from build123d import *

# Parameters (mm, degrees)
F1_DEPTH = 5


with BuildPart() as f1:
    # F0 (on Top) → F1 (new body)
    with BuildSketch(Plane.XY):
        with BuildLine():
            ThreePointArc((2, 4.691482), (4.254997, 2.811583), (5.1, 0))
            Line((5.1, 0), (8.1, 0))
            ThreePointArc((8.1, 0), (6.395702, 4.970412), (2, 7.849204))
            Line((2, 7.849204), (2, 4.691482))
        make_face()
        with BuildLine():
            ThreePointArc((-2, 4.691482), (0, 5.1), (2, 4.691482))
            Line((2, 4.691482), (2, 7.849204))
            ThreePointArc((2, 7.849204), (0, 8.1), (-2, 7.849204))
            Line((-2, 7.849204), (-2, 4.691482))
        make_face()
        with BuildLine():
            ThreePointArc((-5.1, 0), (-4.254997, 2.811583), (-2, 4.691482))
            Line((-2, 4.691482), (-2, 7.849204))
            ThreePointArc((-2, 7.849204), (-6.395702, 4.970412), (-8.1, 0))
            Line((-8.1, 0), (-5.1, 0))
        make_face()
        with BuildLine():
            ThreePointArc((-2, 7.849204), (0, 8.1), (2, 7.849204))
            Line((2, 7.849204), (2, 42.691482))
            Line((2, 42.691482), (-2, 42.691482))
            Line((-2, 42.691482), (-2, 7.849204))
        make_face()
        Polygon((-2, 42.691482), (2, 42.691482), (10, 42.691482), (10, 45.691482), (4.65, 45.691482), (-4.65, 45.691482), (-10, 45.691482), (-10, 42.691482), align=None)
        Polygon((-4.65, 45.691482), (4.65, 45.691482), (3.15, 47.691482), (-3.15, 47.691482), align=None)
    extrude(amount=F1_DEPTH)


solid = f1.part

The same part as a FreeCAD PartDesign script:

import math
import FreeCAD as App
import Part
import Sketcher
from FreeCAD import Vector
Q = App.Units.Quantity

doc = App.newDocument("Part")
body = doc.addObject("PartDesign::Body", "Body")

sketch1 = body.newObject("Sketcher::SketchObject", "Sketch")
sketch1.AttachmentSupport = (doc.getObject("XY_Plane"), [""])
sketch1.MapMode = "FlatFace"
sketch1.addGeometry([
    Part.ArcOfCircle(Part.Circle(Vector(-0.000002, -0.000001, 0), Vector(0, 0, 1), 5.100002), math.radians(0.000009), math.radians(66.911214)),
    Part.LineSegment(Vector(5.1, 0, 0), Vector(8.1, 0, 0)),
    Part.ArcOfCircle(Part.Circle(Vector(-0.000001, 0, 0), Vector(0, 0, 1), 8.100001), math.radians(0.000002), math.radians(75.705048)),
    Part.LineSegment(Vector(2, 7.849204, 0), Vector(2, 42.691482, 0)),
    Part.LineSegment(Vector(2, 42.691482, 0), Vector(10, 42.691482, 0)),
    Part.LineSegment(Vector(10, 42.691482, 0), Vector(10, 45.691482, 0)),
    Part.LineSegment(Vector(10, 45.691482, 0), Vector(4.65, 45.691482, 0)),
    Part.LineSegment(Vector(4.65, 45.691482, 0), Vector(3.15, 47.691482, 0)),
    Part.LineSegment(Vector(3.15, 47.691482, 0), Vector(-3.15, 47.691482, 0)),
    Part.LineSegment(Vector(-3.15, 47.691482, 0), Vector(-4.65, 45.691482, 0)),
    Part.LineSegment(Vector(-4.65, 45.691482, 0), Vector(-10, 45.691482, 0)),
    Part.LineSegment(Vector(-10, 45.691482, 0), Vector(-10, 42.691482, 0)),
    Part.LineSegment(Vector(-10, 42.691482, 0), Vector(-2, 42.691482, 0)),
    Part.LineSegment(Vector(-2, 42.691482, 0), Vector(-2, 7.849204, 0)),
    Part.ArcOfCircle(Part.Circle(Vector(0.000001, 0, 0), Vector(0, 0, 1), 8.100001), math.radians(104.294952), math.radians(179.999998)),
    Part.LineSegment(Vector(-8.1, 0, 0), Vector(-5.1, 0, 0)),
    Part.ArcOfCircle(Part.Circle(Vector(0.000002, -0.000001, 0), Vector(0, 0, 1), 5.100002), math.radians(113.088786), math.radians(179.999991)),
    Part.ArcOfCircle(Part.Circle(Vector(0, -0.000004, 0), Vector(0, 0, 1), 5.100004), math.radians(66.911247), math.radians(113.088753)),
], False)
sketch1.addConstraint([
    Sketcher.Constraint("Coincident", 0, 1, 1, 1),
    Sketcher.Constraint("Coincident", 1, 2, 2, 1),
    Sketcher.Constraint("Coincident", 2, 2, 3, 1),
    Sketcher.Constraint("Coincident", 3, 2, 4, 1),
    Sketcher.Constraint("Coincident", 4, 2, 5, 1),
    Sketcher.Constraint("Coincident", 5, 2, 6, 1),
    Sketcher.Constraint("Coincident", 6, 2, 7, 1),
    Sketcher.Constraint("Coincident", 7, 2, 8, 1),
    Sketcher.Constraint("Coincident", 8, 2, 9, 1),
    Sketcher.Constraint("Coincident", 9, 2, 10, 1),
    Sketcher.Constraint("Coincident", 10, 2, 11, 1),
    Sketcher.Constraint("Coincident", 11, 2, 12, 1),
    Sketcher.Constraint("Coincident", 12, 2, 13, 1),
    Sketcher.Constraint("Coincident", 13, 2, 14, 1),
    Sketcher.Constraint("Coincident", 14, 2, 15, 1),
    Sketcher.Constraint("Coincident", 15, 2, 16, 2),
    Sketcher.Constraint("Tangent", 16, 1, 17, 2),
    Sketcher.Constraint("Tangent", 17, 1, 0, 2),
    Sketcher.Constraint("Horizontal", 1),
    Sketcher.Constraint("Vertical", 3),
    Sketcher.Constraint("Horizontal", 4),
    Sketcher.Constraint("Vertical", 5),
    Sketcher.Constraint("Horizontal", 6),
    Sketcher.Constraint("Horizontal", 8),
    Sketcher.Constraint("Horizontal", 10),
    Sketcher.Constraint("Vertical", 11),
    Sketcher.Constraint("Horizontal", 12),
    Sketcher.Constraint("Vertical", 13),
    Sketcher.Constraint("Horizontal", 15),
    Sketcher.Constraint("Coincident", 0, 3, -1, 1),
    Sketcher.Constraint("Coincident", 2, 3, -1, 1),
    Sketcher.Constraint("Coincident", 14, 3, -1, 1),
    Sketcher.Constraint("Coincident", 16, 3, -1, 1),
    Sketcher.Constraint("Equal", 2, 14),
    Sketcher.Constraint("Symmetric", 6, 2, 9, 2, -2),
    Sketcher.Constraint("Symmetric", 4, 2, 11, 2, -2),
    Sketcher.Constraint("PointOnObject", 0, 1, -1),
    Sketcher.Constraint("PointOnObject", 14, 2, -1),
    Sketcher.Constraint("Horizontal", 2, 2, 13, 2),
    Sketcher.Constraint("Horizontal", 16, 1, 17, 1),
    Sketcher.Constraint("Vertical", 13, 2, 16, 1),
    Sketcher.Constraint("Equal", 15, 5),
    Sketcher.Constraint("Equal", 7, 9),
    Sketcher.Constraint("Radius", 0, Q("5.100002 mm")),
    Sketcher.Constraint("Radius", 2, Q("8.100001 mm")),
    Sketcher.Constraint("DistanceX", 4, 1, 4, 2, Q("8 mm")),
    Sketcher.Constraint("DistanceX", 8, 2, 8, 1, Q("6.3 mm")),
    Sketcher.Constraint("DistanceX", -1, 1, 2, 2, Q("2 mm")),
    Sketcher.Constraint("DistanceY", 6, 2, 7, 2, Q("2 mm")),
    Sketcher.Constraint("Distance", 7, Q("2.5 mm")),
    Sketcher.Constraint("DistanceY", 3, 1, 3, 2, Q("34.842278 mm")),
])
pad1 = body.newObject("PartDesign::Pad", "Pad")
pad1.Profile = sketch1
pad1.Length = 5

doc.recompute()
